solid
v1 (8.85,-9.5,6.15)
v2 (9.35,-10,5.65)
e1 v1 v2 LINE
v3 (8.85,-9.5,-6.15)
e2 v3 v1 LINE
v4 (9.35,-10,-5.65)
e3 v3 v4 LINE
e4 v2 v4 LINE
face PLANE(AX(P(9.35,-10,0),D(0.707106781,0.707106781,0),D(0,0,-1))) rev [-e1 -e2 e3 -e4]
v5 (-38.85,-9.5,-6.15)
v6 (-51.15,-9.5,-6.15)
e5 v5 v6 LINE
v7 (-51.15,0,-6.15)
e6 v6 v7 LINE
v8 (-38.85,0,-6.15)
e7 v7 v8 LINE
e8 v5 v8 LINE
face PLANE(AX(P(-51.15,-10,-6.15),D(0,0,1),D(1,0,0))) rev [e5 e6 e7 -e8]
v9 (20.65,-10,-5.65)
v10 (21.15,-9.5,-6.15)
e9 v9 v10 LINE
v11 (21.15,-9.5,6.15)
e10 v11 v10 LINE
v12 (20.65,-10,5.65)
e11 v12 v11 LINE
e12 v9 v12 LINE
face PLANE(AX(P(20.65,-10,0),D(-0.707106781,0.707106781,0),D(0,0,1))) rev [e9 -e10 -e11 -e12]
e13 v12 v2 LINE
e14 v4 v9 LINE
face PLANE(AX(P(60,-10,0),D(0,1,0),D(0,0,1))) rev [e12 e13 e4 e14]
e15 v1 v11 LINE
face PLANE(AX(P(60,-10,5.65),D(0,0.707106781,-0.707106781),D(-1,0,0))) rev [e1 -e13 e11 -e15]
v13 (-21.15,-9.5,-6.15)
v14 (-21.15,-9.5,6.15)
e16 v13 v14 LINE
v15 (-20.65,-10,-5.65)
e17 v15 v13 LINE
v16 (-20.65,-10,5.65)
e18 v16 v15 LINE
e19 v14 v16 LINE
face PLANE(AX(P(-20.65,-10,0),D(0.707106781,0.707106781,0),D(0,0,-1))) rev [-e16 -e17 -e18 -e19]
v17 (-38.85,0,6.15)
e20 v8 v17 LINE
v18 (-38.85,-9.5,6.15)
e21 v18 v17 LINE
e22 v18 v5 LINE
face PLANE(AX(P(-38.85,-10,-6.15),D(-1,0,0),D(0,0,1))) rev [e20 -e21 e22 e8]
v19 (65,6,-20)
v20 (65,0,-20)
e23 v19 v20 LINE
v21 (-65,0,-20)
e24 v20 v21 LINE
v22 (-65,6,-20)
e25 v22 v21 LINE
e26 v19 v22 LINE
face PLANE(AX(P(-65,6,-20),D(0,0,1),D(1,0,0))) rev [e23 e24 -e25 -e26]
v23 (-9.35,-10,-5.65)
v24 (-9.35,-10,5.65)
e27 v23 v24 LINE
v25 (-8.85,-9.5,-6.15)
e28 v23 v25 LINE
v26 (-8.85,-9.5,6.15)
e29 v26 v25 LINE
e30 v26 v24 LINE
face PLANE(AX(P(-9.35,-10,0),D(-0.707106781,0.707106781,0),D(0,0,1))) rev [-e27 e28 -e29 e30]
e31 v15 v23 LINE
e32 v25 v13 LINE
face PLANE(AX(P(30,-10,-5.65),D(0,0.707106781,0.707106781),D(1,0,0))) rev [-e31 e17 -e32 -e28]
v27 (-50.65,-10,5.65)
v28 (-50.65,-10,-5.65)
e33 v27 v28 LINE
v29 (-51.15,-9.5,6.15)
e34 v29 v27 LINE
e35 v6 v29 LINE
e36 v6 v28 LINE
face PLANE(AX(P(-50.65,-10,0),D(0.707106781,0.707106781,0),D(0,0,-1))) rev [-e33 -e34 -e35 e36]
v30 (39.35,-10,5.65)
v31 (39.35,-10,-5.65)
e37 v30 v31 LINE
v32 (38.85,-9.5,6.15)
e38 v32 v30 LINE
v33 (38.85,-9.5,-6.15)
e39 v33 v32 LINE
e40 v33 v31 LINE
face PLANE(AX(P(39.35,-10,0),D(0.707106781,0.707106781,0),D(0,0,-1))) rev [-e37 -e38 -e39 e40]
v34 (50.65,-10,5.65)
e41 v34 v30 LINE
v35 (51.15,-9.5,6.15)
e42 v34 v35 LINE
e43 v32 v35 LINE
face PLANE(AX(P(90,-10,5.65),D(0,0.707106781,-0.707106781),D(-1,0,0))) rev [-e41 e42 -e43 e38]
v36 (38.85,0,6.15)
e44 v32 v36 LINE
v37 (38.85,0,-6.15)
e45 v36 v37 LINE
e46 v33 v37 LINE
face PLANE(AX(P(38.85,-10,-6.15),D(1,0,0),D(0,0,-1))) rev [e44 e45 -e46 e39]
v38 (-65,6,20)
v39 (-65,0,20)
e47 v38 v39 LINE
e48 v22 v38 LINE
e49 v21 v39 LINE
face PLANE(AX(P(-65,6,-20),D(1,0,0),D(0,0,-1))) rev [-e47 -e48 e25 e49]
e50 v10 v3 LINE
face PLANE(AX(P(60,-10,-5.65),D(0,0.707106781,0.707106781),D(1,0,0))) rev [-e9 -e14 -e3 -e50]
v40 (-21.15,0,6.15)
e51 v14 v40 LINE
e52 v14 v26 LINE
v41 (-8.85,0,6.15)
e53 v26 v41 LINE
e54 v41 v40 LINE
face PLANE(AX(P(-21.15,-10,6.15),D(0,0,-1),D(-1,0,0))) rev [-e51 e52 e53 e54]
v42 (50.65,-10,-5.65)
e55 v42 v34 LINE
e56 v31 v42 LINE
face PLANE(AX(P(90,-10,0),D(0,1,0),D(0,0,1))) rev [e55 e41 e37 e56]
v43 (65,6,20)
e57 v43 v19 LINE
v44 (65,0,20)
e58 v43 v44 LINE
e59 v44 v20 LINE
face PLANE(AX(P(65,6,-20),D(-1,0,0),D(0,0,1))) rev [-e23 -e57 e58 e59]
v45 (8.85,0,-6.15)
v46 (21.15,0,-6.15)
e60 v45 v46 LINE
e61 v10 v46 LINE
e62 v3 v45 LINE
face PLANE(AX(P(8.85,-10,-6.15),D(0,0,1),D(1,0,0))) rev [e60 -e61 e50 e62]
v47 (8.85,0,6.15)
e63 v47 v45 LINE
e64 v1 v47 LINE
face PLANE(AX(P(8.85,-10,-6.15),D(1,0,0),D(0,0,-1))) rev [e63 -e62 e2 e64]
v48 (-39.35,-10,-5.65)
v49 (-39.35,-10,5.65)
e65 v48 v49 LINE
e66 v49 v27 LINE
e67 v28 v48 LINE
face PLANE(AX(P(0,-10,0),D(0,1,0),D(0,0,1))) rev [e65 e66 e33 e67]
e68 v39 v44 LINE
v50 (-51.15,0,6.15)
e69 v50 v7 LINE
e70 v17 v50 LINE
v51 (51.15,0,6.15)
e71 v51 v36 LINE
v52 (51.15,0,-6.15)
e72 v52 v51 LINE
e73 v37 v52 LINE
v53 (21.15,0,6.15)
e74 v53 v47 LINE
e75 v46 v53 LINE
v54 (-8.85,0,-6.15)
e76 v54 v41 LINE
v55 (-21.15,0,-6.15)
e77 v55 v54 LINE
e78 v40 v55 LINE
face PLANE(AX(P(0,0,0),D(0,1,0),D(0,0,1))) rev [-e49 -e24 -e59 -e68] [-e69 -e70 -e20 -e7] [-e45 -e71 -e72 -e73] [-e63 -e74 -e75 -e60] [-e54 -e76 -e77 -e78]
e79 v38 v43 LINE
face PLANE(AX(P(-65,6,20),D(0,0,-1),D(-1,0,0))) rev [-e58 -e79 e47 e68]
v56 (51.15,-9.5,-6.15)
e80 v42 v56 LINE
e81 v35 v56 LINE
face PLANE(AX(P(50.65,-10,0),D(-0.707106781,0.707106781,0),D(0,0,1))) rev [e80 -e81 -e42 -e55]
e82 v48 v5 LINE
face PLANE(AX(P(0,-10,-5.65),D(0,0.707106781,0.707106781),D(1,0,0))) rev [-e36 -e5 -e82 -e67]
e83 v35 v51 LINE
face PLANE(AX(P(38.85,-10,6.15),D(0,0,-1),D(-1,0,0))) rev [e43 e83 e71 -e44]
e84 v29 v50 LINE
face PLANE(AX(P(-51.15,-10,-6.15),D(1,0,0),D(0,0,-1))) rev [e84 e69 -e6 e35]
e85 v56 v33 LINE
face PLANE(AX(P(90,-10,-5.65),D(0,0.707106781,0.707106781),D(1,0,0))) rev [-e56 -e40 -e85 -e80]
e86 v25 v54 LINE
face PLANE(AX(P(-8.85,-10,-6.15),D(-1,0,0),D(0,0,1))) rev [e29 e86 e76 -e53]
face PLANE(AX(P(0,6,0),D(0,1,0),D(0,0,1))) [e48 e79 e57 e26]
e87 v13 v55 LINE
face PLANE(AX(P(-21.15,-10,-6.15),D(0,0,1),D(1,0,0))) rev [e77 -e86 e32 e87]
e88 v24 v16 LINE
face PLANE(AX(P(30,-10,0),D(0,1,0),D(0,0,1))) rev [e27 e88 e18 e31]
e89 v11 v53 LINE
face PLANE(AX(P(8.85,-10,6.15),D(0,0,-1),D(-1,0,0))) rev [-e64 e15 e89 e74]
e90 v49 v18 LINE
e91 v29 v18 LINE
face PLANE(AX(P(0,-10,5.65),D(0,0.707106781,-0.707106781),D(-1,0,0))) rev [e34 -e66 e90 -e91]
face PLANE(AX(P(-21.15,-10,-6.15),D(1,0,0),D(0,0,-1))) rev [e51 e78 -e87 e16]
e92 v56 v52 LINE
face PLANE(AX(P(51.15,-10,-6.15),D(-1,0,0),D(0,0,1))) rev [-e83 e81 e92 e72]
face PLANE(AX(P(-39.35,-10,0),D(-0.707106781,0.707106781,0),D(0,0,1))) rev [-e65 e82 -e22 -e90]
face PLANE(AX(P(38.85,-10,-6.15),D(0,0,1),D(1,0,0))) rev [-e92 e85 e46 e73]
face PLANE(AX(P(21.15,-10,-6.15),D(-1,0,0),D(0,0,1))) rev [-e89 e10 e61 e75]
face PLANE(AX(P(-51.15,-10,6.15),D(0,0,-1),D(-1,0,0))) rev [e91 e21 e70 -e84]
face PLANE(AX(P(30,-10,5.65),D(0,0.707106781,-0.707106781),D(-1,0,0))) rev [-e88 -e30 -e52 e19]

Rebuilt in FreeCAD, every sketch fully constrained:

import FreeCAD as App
import Part
import Sketcher
Q = App.Units.Quantity


def edges_at(feature, points):
    """Names of the edges that pass closest to the given points."""
    edges = feature.Shape.Edges
    near = lambda p: min(range(len(edges)), key=lambda i: edges[i].distToShape(Part.Vertex(*p))[0])
    return sorted({f"Edge{near(p) + 1}" for p in points})


def add_polygon(sketch, points):
    """Adds a closed chain of lines whose ends are joined by coincident constraints."""
    first, n = sketch.GeometryCount, len(points)
    for a, b in zip(points, points[1:] + points[:1]):
        sketch.addGeometry(Part.LineSegment(App.Vector(*a, 0), App.Vector(*b, 0)), False)
    for i in range(n):
        sketch.addConstraint(Sketcher.Constraint("Coincident", first + i, 2, first + (i + 1) % n, 1))

doc = App.newDocument("Part")
body = doc.addObject("PartDesign::Body", "Body")

# Sketch on XZ plane
sketch1 = body.newObject("Sketcher::SketchObject", "Sketch")
sketch1.AttachmentSupport = (doc.getObject("XZ_Plane"), [""])
sketch1.MapMode = "FlatFace"
add_polygon(sketch1, [(-65, -20), (-65, 20), (65, 20), (65, -20)])  # lines 0-3
sketch1.addConstraint([
    Sketcher.Constraint("Vertical", 0),
    Sketcher.Constraint("Horizontal", 1),
    Sketcher.Constraint("Vertical", 2),
    Sketcher.Constraint("Horizontal", 3),
    Sketcher.Constraint("Symmetric", 0, 2, 2, 2, -1, 1),
    Sketcher.Constraint("DistanceX", 1, 1, 1, 2, Q("130 mm")),
    Sketcher.Constraint("DistanceY", 0, 1, 0, 2, Q("40 mm")),
])
pad1 = body.newObject("PartDesign::Pad", "Pad")
pad1.Profile = sketch1
pad1.Length = 6
pad1.Reversed = True

# Sketch on XZ plane
sketch2 = body.newObject("Sketcher::SketchObject", "Sketch001")
sketch2.AttachmentSupport = (doc.getObject("XZ_Plane"), [""])
sketch2.MapMode = "FlatFace"
add_polygon(sketch2, [(-51, 6), (-51, -6), (-39, -6), (-39, 6)])  # lines 0-3
sketch2.addConstraint([
    Sketcher.Constraint("Vertical", 0),
    Sketcher.Constraint("Horizontal", 1),
    Sketcher.Constraint("Vertical", 2),
    Sketcher.Constraint("Horizontal", 3),
    Sketcher.Constraint("Equal", 3, 0),
    Sketcher.Constraint("DistanceX", 1, 1, 1, 2, Q("12.3 mm")),
    Sketcher.Constraint("DistanceX", 0, 2, -1, 1, Q("51.15 mm")),
    Sketcher.Constraint("DistanceY", 0, 2, -1, 1, Q("6.15 mm")),
])
pad2 = body.newObject("PartDesign::Pad", "Pad001")
pad2.Profile = sketch2
pad2.Length = 10
doc.recompute()

linearpattern = body.newObject("PartDesign::LinearPattern", "LinearPattern")
linearpattern.Originals = [pad2]
linearpattern.Direction = (doc.getObject("X_Axis"), [""])
linearpattern.Mode = "offset"
linearpattern.Offset = 30
linearpattern.Occurrences = 4
body.Tip = linearpattern
doc.recompute()

chamfer = body.newObject("PartDesign::Chamfer", "Chamfer")
chamfer.Base = (linearpattern, edges_at(linearpattern, [
    (-51.15, -10, 0),
    (-45, -10, -6.15),
    (-38.85, -10, 0),
    (-45, -10, 6.15),
    (-21.15, -10, 0),
    (-15, -10, -6.15),
    (-8.85, -10, 0),
    (-15, -10, 6.15),
    (8.85, -10, 0),
    (15, -10, -6.15),
    (21.15, -10, 0),
    (15, -10, 6.15),
    (38.85, -10, 0),
    (45, -10, -6.15),
    (51.15, -10, 0),
    (45, -10, 6.15),
]))
chamfer.Size = 0.5

doc.recompute()
